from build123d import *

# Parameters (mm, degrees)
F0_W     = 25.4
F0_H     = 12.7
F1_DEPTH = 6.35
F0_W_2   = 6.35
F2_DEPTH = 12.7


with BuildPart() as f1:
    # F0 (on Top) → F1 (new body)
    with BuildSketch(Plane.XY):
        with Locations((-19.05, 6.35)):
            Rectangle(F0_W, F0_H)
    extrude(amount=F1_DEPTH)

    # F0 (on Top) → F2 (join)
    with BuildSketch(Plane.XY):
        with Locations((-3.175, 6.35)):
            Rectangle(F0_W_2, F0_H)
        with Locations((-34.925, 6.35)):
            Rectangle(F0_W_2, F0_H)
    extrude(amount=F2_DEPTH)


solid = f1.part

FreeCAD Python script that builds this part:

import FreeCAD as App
import Part
import Sketcher

V = App.Vector
Q = App.Units.Quantity

doc = App.newDocument("Part")
body = doc.addObject("PartDesign::Body", "Body")

# Sketch on XY plane
sketch1 = body.newObject("Sketcher::SketchObject", "Sketch")
sketch1.AttachmentSupport = (doc.getObject("XY_Plane"), [""])
sketch1.MapMode = "FlatFace"
sketch1.addGeometry(Part.LineSegment(V(-32, 13, 0), V(-32, 0, 0)), False)
sketch1.addGeometry(Part.LineSegment(V(-32, 0, 0), V(-6, 0, 0)), False)
sketch1.addGeometry(Part.LineSegment(V(-6, 0, 0), V(-6, 13, 0)), False)
sketch1.addGeometry(Part.LineSegment(V(-6, 13, 0), V(-32, 13, 0)), False)
sketch1.addConstraint(Sketcher.Constraint("Coincident", 0, 2, 1, 1))
sketch1.addConstraint(Sketcher.Constraint("Coincident", 1, 2, 2, 1))
sketch1.addConstraint(Sketcher.Constraint("Coincident", 2, 2, 3, 1))
sketch1.addConstraint(Sketcher.Constraint("Coincident", 3, 2, 0, 1))
sketch1.addConstraint(Sketcher.Constraint("Vertical", 0))
sketch1.addConstraint(Sketcher.Constraint("Horizontal", 1))
sketch1.addConstraint(Sketcher.Constraint("Vertical", 2))
sketch1.addConstraint(Sketcher.Constraint("Horizontal", 3))
sketch1.addConstraint(Sketcher.Constraint("PointOnObject", 0, 2, -1))
sketch1.addConstraint(Sketcher.Constraint("DistanceX", 1, 1, 1, 2, Q("1 in")))
sketch1.addConstraint(Sketcher.Constraint("DistanceY", 0, 2, 0, 1, Q("0.5 in")))
sketch1.addConstraint(Sketcher.Constraint("DistanceX", 0, 2, -1, 1, Q("1.25 in")))
pad1 = body.newObject("PartDesign::Pad", "Pad")
pad1.Profile = sketch1
pad1.Length = Q("0.25 in")

# Sketch on XY plane
sketch2 = body.newObject("Sketcher::SketchObject", "Sketch001")
sketch2.AttachmentSupport = (doc.getObject("XY_Plane"), [""])
sketch2.MapMode = "FlatFace"
sketch2.addGeometry(Part.LineSegment(V(-6, 13, 0), V(-6, 0, 0)), False)
sketch2.addGeometry(Part.LineSegment(V(-6, 0, 0), V(0, 0, 0)), False)
sketch2.addGeometry(Part.LineSegment(V(0, 0, 0), V(0, 13, 0)), False)
sketch2.addGeometry(Part.LineSegment(V(0, 13, 0), V(-6, 13, 0)), False)
sketch2.addGeometry(Part.LineSegment(V(-38, 13, 0), V(-38, 0, 0)), False)
sketch2.addGeometry(Part.LineSegment(V(-38, 0, 0), V(-32, 0, 0)), False)
sketch2.addGeometry(Part.LineSegment(V(-32, 0, 0), V(-32, 13, 0)), False)
sketch2.addGeometry(Part.LineSegment(V(-32, 13, 0), V(-38, 13, 0)), False)
sketch2.addConstraint(Sketcher.Constraint("Coincident", 0, 2, 1, 1))
sketch2.addConstraint(Sketcher.Constraint("Coincident", 1, 2, 2, 1))
sketch2.addConstraint(Sketcher.Constraint("Coincident", 2, 2, 3, 1))
sketch2.addConstraint(Sketcher.Constraint("Coincident", 3, 2, 0, 1))
sketch2.addConstraint(Sketcher.Constraint("Coincident", 4, 2, 5, 1))
sketch2.addConstraint(Sketcher.Constraint("Coincident", 5, 2, 6, 1))
sketch2.addConstraint(Sketcher.Constraint("Coincident", 6, 2, 7, 1))
sketch2.addConstraint(Sketcher.Constraint("Coincident", 7, 2, 4, 1))
sketch2.addConstraint(Sketcher.Constraint("Vertical", 0))
sketch2.addConstraint(Sketcher.Constraint("Horizontal", 1))
sketch2.addConstraint(Sketcher.Constraint("Vertical", 2))
sketch2.addConstraint(Sketcher.Constraint("Horizontal", 3))
sketch2.addConstraint(Sketcher.Constraint("Vertical", 4))
sketch2.addConstraint(Sketcher.Constraint("Horizontal", 5))
sketch2.addConstraint(Sketcher.Constraint("Vertical", 6))
sketch2.addConstraint(Sketcher.Constraint("Horizontal", 7))
sketch2.addConstraint(Sketcher.Constraint("Coincident", 1, 2, -1, 1))
sketch2.addConstraint(Sketcher.Constraint("PointOnObject", 4, 2, -1))
sketch2.addConstraint(Sketcher.Constraint("Horizontal", 3, 2, 6, 2))
sketch2.addConstraint(Sketcher.Constraint("Equal", 3, 5))
sketch2.addConstraint(Sketcher.Constraint("DistanceY", 0, 2, 0, 1, Q("0.5 in")))
sketch2.addConstraint(Sketcher.Constraint("DistanceX", 5, 2, 0, 2, Q("1 in")))
sketch2.addConstraint(Sketcher.Constraint("DistanceX", 1, 1, 1, 2, Q("0.25 in")))
pad2 = body.newObject("PartDesign::Pad", "Pad001")
pad2.Profile = sketch2
pad2.Length = Q("0.5 in")

doc.recompute()
